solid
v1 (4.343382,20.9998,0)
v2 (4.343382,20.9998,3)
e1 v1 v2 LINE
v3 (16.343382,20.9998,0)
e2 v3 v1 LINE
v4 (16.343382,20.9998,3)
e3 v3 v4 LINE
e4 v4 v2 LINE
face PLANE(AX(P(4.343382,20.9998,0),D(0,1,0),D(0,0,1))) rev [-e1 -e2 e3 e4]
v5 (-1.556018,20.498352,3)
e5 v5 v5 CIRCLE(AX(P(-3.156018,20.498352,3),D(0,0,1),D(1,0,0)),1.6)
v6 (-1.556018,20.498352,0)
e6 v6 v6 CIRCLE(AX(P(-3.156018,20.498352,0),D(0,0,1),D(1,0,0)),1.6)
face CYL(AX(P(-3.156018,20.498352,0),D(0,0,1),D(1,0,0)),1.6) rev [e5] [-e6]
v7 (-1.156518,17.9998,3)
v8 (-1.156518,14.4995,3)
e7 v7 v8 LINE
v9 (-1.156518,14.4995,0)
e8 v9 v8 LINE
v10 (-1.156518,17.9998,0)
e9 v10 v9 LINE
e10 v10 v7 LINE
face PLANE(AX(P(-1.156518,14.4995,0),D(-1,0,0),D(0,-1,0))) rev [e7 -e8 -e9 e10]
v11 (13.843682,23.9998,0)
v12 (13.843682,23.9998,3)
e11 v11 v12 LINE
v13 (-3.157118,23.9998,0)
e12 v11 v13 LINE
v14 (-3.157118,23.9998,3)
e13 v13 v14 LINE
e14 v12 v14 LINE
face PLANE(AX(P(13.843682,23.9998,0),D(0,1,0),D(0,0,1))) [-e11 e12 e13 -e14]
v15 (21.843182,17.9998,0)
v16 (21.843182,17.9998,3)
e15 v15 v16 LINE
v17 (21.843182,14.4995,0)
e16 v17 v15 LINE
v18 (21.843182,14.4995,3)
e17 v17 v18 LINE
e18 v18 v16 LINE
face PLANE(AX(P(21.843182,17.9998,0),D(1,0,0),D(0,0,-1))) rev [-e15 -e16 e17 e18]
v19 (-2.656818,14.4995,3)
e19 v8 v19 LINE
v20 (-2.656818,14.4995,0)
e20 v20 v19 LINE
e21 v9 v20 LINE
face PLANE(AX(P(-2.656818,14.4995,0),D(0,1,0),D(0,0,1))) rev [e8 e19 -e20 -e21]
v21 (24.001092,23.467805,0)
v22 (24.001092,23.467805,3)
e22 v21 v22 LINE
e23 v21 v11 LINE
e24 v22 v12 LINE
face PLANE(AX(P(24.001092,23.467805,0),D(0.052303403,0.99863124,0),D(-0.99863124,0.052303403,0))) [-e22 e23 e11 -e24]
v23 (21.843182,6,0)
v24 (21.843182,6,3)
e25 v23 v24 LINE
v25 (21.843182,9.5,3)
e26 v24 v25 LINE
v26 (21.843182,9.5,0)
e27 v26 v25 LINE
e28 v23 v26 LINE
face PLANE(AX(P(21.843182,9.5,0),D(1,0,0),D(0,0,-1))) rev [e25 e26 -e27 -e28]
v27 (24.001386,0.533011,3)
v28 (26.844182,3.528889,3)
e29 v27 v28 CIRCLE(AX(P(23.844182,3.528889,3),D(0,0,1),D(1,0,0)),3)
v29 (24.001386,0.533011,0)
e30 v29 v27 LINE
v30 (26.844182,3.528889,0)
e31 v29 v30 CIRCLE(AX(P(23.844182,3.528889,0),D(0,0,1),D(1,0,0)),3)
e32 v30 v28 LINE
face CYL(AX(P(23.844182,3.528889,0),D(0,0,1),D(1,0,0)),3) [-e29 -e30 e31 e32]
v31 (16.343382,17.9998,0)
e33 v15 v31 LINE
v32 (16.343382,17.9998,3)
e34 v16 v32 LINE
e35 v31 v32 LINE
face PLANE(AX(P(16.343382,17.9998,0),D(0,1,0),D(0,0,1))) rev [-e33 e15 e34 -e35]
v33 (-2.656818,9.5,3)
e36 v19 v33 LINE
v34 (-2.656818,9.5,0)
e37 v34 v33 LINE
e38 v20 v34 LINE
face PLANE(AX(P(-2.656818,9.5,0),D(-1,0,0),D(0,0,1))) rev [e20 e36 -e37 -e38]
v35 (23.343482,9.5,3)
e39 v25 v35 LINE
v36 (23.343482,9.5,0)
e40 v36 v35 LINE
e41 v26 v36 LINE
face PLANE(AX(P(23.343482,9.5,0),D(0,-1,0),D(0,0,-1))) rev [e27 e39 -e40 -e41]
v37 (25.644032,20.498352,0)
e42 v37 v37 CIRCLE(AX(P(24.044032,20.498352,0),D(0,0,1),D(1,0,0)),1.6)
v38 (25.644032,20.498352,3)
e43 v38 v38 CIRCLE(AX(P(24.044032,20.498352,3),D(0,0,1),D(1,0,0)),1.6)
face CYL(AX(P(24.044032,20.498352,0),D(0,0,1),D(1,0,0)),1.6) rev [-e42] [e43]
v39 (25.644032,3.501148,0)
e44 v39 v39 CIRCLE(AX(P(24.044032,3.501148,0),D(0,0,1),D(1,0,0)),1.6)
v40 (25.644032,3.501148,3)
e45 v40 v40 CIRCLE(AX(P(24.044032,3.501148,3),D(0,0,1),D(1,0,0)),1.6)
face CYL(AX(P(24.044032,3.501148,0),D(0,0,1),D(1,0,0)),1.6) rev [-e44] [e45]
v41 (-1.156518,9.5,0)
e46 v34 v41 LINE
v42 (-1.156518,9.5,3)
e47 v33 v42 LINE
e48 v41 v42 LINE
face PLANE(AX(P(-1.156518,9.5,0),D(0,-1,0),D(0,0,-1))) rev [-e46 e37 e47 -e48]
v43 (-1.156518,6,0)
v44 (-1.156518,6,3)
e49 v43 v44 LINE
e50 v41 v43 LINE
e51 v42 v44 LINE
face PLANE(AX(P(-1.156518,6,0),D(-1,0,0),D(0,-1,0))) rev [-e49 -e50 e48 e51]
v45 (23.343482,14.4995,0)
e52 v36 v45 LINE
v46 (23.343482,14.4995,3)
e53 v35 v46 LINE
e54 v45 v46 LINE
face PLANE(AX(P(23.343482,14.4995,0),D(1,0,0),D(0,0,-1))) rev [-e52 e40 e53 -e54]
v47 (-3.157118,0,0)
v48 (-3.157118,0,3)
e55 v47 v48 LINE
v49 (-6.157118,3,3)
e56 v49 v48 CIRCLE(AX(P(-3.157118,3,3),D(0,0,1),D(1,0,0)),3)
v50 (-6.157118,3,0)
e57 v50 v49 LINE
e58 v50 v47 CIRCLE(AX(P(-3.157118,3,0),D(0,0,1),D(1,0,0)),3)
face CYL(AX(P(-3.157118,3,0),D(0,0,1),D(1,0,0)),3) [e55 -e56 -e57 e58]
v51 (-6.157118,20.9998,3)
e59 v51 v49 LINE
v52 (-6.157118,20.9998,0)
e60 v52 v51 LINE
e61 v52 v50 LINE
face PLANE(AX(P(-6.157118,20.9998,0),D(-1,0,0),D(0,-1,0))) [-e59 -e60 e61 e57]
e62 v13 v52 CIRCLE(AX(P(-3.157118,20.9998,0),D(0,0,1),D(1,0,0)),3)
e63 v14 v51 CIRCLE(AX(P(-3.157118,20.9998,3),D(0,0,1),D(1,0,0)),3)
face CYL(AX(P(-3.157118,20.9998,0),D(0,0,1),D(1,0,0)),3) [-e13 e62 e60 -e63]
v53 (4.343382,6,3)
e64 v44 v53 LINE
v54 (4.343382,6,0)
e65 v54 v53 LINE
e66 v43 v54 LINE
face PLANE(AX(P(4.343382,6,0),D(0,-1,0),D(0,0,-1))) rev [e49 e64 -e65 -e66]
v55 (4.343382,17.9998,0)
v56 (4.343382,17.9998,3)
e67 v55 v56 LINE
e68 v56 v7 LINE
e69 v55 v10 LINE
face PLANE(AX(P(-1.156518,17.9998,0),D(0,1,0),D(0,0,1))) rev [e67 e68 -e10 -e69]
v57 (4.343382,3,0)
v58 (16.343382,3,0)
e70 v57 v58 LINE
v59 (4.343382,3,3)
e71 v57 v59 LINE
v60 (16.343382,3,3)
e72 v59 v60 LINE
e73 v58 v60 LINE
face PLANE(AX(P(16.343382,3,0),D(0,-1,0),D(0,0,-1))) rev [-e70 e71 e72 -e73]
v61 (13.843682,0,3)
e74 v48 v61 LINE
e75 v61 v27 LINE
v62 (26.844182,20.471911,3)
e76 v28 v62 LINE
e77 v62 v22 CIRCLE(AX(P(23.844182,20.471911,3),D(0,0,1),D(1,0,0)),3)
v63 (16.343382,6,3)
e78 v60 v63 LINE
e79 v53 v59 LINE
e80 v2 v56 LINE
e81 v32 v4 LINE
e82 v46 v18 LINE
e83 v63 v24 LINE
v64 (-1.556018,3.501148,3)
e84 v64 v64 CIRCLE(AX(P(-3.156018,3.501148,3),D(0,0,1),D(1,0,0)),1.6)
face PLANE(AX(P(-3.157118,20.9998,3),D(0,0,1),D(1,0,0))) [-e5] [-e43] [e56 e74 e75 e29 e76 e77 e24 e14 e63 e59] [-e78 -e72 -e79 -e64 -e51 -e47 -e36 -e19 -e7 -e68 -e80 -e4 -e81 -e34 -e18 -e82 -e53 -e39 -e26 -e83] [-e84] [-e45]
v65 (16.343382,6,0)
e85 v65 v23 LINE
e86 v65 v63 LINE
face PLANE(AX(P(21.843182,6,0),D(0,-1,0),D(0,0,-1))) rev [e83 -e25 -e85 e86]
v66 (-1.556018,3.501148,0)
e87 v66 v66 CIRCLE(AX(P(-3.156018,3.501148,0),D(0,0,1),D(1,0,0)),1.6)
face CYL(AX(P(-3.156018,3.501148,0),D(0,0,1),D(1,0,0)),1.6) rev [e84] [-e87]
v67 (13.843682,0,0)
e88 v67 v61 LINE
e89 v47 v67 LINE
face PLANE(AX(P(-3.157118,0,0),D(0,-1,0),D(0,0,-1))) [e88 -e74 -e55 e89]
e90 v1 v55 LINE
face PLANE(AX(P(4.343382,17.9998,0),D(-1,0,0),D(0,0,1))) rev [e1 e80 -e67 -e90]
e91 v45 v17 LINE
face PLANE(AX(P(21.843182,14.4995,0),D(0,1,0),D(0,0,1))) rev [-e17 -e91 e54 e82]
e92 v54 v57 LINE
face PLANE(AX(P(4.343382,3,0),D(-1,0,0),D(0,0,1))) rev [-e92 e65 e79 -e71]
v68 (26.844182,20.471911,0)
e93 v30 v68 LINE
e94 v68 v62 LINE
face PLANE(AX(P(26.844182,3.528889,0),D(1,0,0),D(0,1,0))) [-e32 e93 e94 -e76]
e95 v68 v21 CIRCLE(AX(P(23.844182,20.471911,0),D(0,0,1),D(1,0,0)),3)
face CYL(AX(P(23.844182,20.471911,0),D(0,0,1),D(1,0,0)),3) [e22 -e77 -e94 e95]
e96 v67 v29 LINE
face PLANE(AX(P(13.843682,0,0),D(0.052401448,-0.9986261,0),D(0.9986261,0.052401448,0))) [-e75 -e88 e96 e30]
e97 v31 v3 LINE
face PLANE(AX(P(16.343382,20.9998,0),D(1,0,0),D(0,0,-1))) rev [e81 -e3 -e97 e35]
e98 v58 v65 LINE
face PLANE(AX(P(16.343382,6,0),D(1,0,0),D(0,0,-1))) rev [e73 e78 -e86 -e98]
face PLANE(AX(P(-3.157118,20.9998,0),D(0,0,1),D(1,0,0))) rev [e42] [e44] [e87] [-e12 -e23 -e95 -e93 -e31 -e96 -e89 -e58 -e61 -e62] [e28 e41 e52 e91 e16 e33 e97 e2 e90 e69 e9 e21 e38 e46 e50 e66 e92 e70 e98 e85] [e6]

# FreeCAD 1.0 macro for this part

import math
import FreeCAD as App
import Part
import Sketcher

V = App.Vector
Q = App.Units.Quantity


def add_polygon(sketch, points):
    """Adds a closed chain of lines whose ends are joined by coincident constraints."""
    first, n = sketch.GeometryCount, len(points)
    for a, b in zip(points, points[1:] + points[:1]):
        sketch.addGeometry(Part.LineSegment(App.Vector(*a, 0), App.Vector(*b, 0)), False)
    for i in range(n):
        sketch.addConstraint(Sketcher.Constraint("Coincident", first + i, 2, first + (i + 1) % n, 1))

doc = App.newDocument("Part")
body = doc.addObject("PartDesign::Body", "Body")

sketch1 = body.newObject("Sketcher::SketchObject", "Sketch")
sketch1.AttachmentSupport = (doc.getObject("XY_Plane"), [""])
sketch1.MapMode = "FlatFace"
sketch1.AttachmentOffset = App.Placement(V(0, 0, 3), App.Rotation())
sketch1.addGeometry(Part.LineSegment(V(13.843682, 23.9998, 0), V(-3.157118, 23.9998, 0)), False)
sketch1.addGeometry(Part.ArcOfCircle(Part.Circle(V(-3.157118, 20.9998, 0), V(0, 0, 1), 3), math.radians(90), math.radians(180)), False)
sketch1.addGeometry(Part.LineSegment(V(-6.157118, 20.9998, 0), V(-6.157118, 3, 0)), False)
sketch1.addGeometry(Part.ArcOfCircle(Part.Circle(V(-3.157118, 3, 0), V(0, 0, 1), 3), math.radians(180), math.radians(270)), False)
sketch1.addGeometry(Part.LineSegment(V(-3.157118, 0, 0), V(13.843682, 0, 0)), False)
sketch1.addGeometry(Part.LineSegment(V(13.843682, 0, 0), V(24.001386, 0.533011, 0)), False)
sketch1.addGeometry(Part.ArcOfCircle(Part.Circle(V(23.844182, 3.528889, 0), V(0, 0, 1), 3), math.radians(-86.996242), math.radians(0)), False)
sketch1.addGeometry(Part.LineSegment(V(26.844182, 3.528889, 0), V(26.844182, 20.471911, 0)), False)
sketch1.addGeometry(Part.ArcOfCircle(Part.Circle(V(23.844182, 20.471911, 0), V(0, 0, 1), 3), math.radians(0), math.radians(87.001868)), False)
sketch1.addGeometry(Part.LineSegment(V(24.001092, 23.467805, 0), V(13.843682, 23.9998, 0)), False)
sketch1.addGeometry(Part.Circle(V(-3.156018, 3.501148, 0), V(0, 0, 1), 1.35), False)
sketch1.addGeometry(Part.Circle(V(24.044032, 3.501148, 0), V(0, 0, 1), 1.35), False)
add_polygon(sketch1, [(21.843182, 17.9998), (21.843182, 14.4995), (23.343482, 14.4995), (23.343482, 9.5), (21.843182, 9.5), (21.843182, 6), (16.343382, 6), (16.343382, 3), (4.343382, 3), (4.343382, 6), (-1.156518, 6), (-1.156518, 9.5), (-2.656818, 9.5), (-2.656818, 14.4995), (-1.156518, 14.4995), (-1.156518, 17.9998), (4.343382, 17.9998), (4.343382, 20.9998), (16.343382, 20.9998), (16.343382, 17.9998)])
sketch1.addGeometry(Part.Circle(V(-3.156018, 20.498352, 0), V(0, 0, 1), 1), False)
sketch1.addGeometry(Part.Circle(V(24.044032, 20.498352, 0), V(0, 0, 1), 1.35), False)
sketch1.addConstraint(Sketcher.Constraint("Coincident", 0, 2, 1, 1))
sketch1.addConstraint(Sketcher.Constraint("Coincident", 1, 2, 2, 1))
sketch1.addConstraint(Sketcher.Constraint("Coincident", 2, 2, 3, 1))
sketch1.addConstraint(Sketcher.Constraint("Coincident", 3, 2, 4, 1))
sketch1.addConstraint(Sketcher.Constraint("Coincident", 4, 2, 5, 1))
sketch1.addConstraint(Sketcher.Constraint("Coincident", 5, 2, 6, 1))
sketch1.addConstraint(Sketcher.Constraint("Coincident", 6, 2, 7, 1))
sketch1.addConstraint(Sketcher.Constraint("Coincident", 7, 2, 8, 1))
sketch1.addConstraint(Sketcher.Constraint("Coincident", 8, 2, 9, 1))
sketch1.addConstraint(Sketcher.Constraint("Coincident", 9, 2, 0, 1))
sketch1.addConstraint(Sketcher.Constraint("Horizontal", 0))
sketch1.addConstraint(Sketcher.Constraint("Vertical", 2))
sketch1.addConstraint(Sketcher.Constraint("Horizontal", 4))
sketch1.addConstraint(Sketcher.Constraint("Vertical", 7))
sketch1.addConstraint(Sketcher.Constraint("Vertical", 12))
sketch1.addConstraint(Sketcher.Constraint("Horizontal", 13))
sketch1.addConstraint(Sketcher.Constraint("Vertical", 14))
sketch1.addConstraint(Sketcher.Constraint("Horizontal", 15))
sketch1.addConstraint(Sketcher.Constraint("Vertical", 16))
sketch1.addConstraint(Sketcher.Constraint("Horizontal", 17))
sketch1.addConstraint(Sketcher.Constraint("Vertical", 18))
sketch1.addConstraint(Sketcher.Constraint("Horizontal", 19))
sketch1.addConstraint(Sketcher.Constraint("Vertical", 20))
sketch1.addConstraint(Sketcher.Constraint("Horizontal", 21))
sketch1.addConstraint(Sketcher.Constraint("Vertical", 22))
sketch1.addConstraint(Sketcher.Constraint("Horizontal", 23))
sketch1.addConstraint(Sketcher.Constraint("Vertical", 24))
sketch1.addConstraint(Sketcher.Constraint("Horizontal", 25))
sketch1.addConstraint(Sketcher.Constraint("Vertical", 26))
sketch1.addConstraint(Sketcher.Constraint("Horizontal", 27))
sketch1.addConstraint(Sketcher.Constraint("Vertical", 28))
sketch1.addConstraint(Sketcher.Constraint("Horizontal", 29))
sketch1.addConstraint(Sketcher.Constraint("Vertical", 30))
sketch1.addConstraint(Sketcher.Constraint("Horizontal", 31))
sketch1.addConstraint(Sketcher.Constraint("PointOnObject", 3, 2, -1))
sketch1.addConstraint(Sketcher.Constraint("Diameter", 32, Q("2 mm")))
sketch1.addConstraint(Sketcher.Constraint("Radius", 1, Q("3 mm")))
sketch1.addConstraint(Sketcher.Constraint("Radius", 3, Q("3 mm")))
sketch1.addConstraint(Sketcher.Constraint("Radius", 6, Q("3 mm")))
sketch1.addConstraint(Sketcher.Constraint("Radius", 8, Q("3 mm")))
sketch1.addConstraint(Sketcher.Constraint("Diameter", 10, Q("2.7 mm")))
sketch1.addConstraint(Sketcher.Constraint("Diameter", 11, Q("2.7 mm")))
sketch1.addConstraint(Sketcher.Constraint("Diameter", 33, Q("2.7 mm")))
sketch1.addConstraint(Sketcher.Constraint("DistanceX", 19, 2, 19, 1, Q("12 mm")))
sketch1.addConstraint(Sketcher.Constraint("DistanceX", 29, 1, 29, 2, Q("12 mm")))
sketch1.addConstraint(Sketcher.Constraint("DistanceY", 18, 2, 18, 1, Q("3 mm")))
sketch1.addConstraint(Sketcher.Constraint("DistanceY", 20, 1, 20, 2, Q("3 mm")))
sketch1.addConstraint(Sketcher.Constraint("DistanceY", 28, 1, 28, 2, Q("3 mm")))
sketch1.addConstraint(Sketcher.Constraint("DistanceY", 30, 2, 30, 1, Q("3 mm")))
sketch1.addConstraint(Sketcher.Constraint("DistanceY", 16, 2, 16, 1, Q("3.5 mm")))
sketch1.addConstraint(Sketcher.Constraint("DistanceY", 22, 1, 22, 2, Q("3.5 mm")))
sketch1.addConstraint(Sketcher.Constraint("DistanceY", -1, 1, 2, 2, Q("3 mm")))
sketch1.addConstraint(Sketcher.Constraint("DistanceY", -1, 1, 16, 2, Q("6 mm")))
sketch1.addConstraint(Sketcher.Constraint("DistanceX", 1, 2, 0, 2, Q("3 mm")))
sketch1.addConstraint(Sketcher.Constraint("DistanceY", 1, 2, 0, 2, Q("3 mm")))
sketch1.addConstraint(Sketcher.Constraint("DistanceX", 2, 2, 3, 2, Q("3 mm")))
sketch1.addConstraint(Sketcher.Constraint("DistanceY", 26, 2, 1, 3, Q("3 mm")))
sketch1.addConstraint(Sketcher.Constraint("DistanceX", 0, 2, 0, 1, Q("17.0008 mm")))
sketch1.addConstraint(Sketcher.Constraint("DistanceX", 4, 1, 4, 2, Q("17.0008 mm")))
sketch1.addConstraint(Sketcher.Constraint("DistanceX", 13, 1, 13, 2, Q("1.5003 mm")))
sketch1.addConstraint(Sketcher.Constraint("DistanceX", 15, 2, 15, 1, Q("1.5003 mm")))
sketch1.addConstraint(Sketcher.Constraint("DistanceX", 17, 2, 17, 1, Q("5.4998 mm")))
sketch1.addConstraint(Sketcher.Constraint("DistanceX", 21, 2, 21, 1, Q("5.4999 mm")))
sketch1.addConstraint(Sketcher.Constraint("DistanceX", 23, 2, 23, 1, Q("1.5003 mm")))
sketch1.addConstraint(Sketcher.Constraint("DistanceX", 25, 1, 25, 2, Q("1.5003 mm")))
sketch1.addConstraint(Sketcher.Constraint("DistanceX", 27, 1, 27, 2, Q("5.4999 mm")))
sketch1.addConstraint(Sketcher.Constraint("DistanceY", 2, 2, 2, 1, Q("17.9998 mm")))
sketch1.addConstraint(Sketcher.Constraint("DistanceY", 12, 2, 12, 1, Q("3.5003 mm")))
sketch1.addConstraint(Sketcher.Constraint("DistanceY", 24, 1, 24, 2, Q("4.9995 mm")))
sketch1.addConstraint(Sketcher.Constraint("DistanceX", 12, 2, 8, 3, Q("2.001 mm")))
sketch1.addConstraint(Sketcher.Constraint("DistanceY", 7, 1, 7, 2, Q("16.943022 mm")))
sketch1.addConstraint(Sketcher.Constraint("DistanceX", 3, 3, 6, 3, Q("27.0013 mm")))
sketch1.addConstraint(Sketcher.Constraint("DistanceX", 3, 3, 10, 3, Q("0.0011 mm")))
sketch1.addConstraint(Sketcher.Constraint("DistanceX", 1, 3, 32, 3, Q("0.0011 mm")))
sketch1.addConstraint(Sketcher.Constraint("DistanceY", 5, 2, 8, 3, Q("19.9389 mm")))
sketch1.addConstraint(Sketcher.Constraint("Distance", 5, Q("10.171679 mm")))
sketch1.addConstraint(Sketcher.Constraint("DistanceX", 1, 3, -1, 1, Q("3.157118 mm")))
sketch1.addConstraint(Sketcher.Constraint("DistanceY", -1, 1, 6, 3, Q("3.528889 mm")))
sketch1.addConstraint(Sketcher.Constraint("DistanceY", -1, 1, 10, 3, Q("3.501148 mm")))
sketch1.addConstraint(Sketcher.Constraint("DistanceX", -1, 1, 11, 3, Q("24.044032 mm")))
sketch1.addConstraint(Sketcher.Constraint("DistanceY", -1, 1, 11, 3, Q("3.501148 mm")))
sketch1.addConstraint(Sketcher.Constraint("DistanceY", -1, 1, 32, 3, Q("20.498352 mm")))
sketch1.addConstraint(Sketcher.Constraint("DistanceX", -1, 1, 33, 3, Q("24.044032 mm")))
sketch1.addConstraint(Sketcher.Constraint("DistanceY", -1, 1, 33, 3, Q("20.498352 mm")))
sketch1.addConstraint(Sketcher.Constraint("DistanceY", -1, 1, 6, 2, Q("3.528889 mm")))
sketch1.addConstraint(Sketcher.Constraint("DistanceX", 8, 2, 33, 3, Q("0.04294 mm")))
pad1 = body.newObject("PartDesign::Pad", "Pad")
pad1.Profile = sketch1
pad1.Length = 3
pad1.Reversed = True

sketch2 = body.newObject("Sketcher::SketchObject", "Sketch001")
sketch2.AttachmentSupport = (doc.getObject("XY_Plane"), [""])
sketch2.MapMode = "FlatFace"
sketch2.AttachmentOffset = App.Placement(V(0, 0, 3), App.Rotation())
sketch2.addGeometry(Part.Circle(V(-3.156018, 20.498352, 0), V(0, 0, 1), 1.6), False)
sketch2.addGeometry(Part.Circle(V(24.044032, 20.498352, 0), V(0, 0, 1), 1.6), False)
sketch2.addGeometry(Part.Circle(V(24.044032, 3.501148, 0), V(0, 0, 1), 1.6), False)
sketch2.addGeometry(Part.Circle(V(-3.156018, 3.501148, 0), V(0, 0, 1), 1.6), False)
sketch2.addConstraint(Sketcher.Constraint("Equal", 0, 1))
sketch2.addConstraint(Sketcher.Constraint("Equal", 1, 2))
sketch2.addConstraint(Sketcher.Constraint("Equal", 2, 3))
sketch2.addConstraint(Sketcher.Constraint("Horizontal", 0, 3, 1, 3))
sketch2.addConstraint(Sketcher.Constraint("Horizontal", 2, 3, 3, 3))
sketch2.addConstraint(Sketcher.Constraint("Vertical", 1, 3, 2, 3))
sketch2.addConstraint(Sketcher.Constraint("Vertical", 0, 3, 3, 3))
sketch2.addConstraint(Sketcher.Constraint("Diameter", 0, Q("3.2 mm")))
sketch2.addConstraint(Sketcher.Constraint("DistanceX", 0, 3, -1, 1, Q("3.156018 mm")))
sketch2.addConstraint(Sketcher.Constraint("DistanceY", -1, 1, 0, 3, Q("20.498352 mm")))
sketch2.addConstraint(Sketcher.Constraint("DistanceX", -1, 1, 1, 3, Q("24.044032 mm")))
sketch2.addConstraint(Sketcher.Constraint("DistanceY", -1, 1, 2, 3, Q("3.501148 mm")))
pocket1 = body.newObject("PartDesign::Pocket", "Pocket")
pocket1.Profile = sketch2
pocket1.Type = "ThroughAll"

doc.recompute()
